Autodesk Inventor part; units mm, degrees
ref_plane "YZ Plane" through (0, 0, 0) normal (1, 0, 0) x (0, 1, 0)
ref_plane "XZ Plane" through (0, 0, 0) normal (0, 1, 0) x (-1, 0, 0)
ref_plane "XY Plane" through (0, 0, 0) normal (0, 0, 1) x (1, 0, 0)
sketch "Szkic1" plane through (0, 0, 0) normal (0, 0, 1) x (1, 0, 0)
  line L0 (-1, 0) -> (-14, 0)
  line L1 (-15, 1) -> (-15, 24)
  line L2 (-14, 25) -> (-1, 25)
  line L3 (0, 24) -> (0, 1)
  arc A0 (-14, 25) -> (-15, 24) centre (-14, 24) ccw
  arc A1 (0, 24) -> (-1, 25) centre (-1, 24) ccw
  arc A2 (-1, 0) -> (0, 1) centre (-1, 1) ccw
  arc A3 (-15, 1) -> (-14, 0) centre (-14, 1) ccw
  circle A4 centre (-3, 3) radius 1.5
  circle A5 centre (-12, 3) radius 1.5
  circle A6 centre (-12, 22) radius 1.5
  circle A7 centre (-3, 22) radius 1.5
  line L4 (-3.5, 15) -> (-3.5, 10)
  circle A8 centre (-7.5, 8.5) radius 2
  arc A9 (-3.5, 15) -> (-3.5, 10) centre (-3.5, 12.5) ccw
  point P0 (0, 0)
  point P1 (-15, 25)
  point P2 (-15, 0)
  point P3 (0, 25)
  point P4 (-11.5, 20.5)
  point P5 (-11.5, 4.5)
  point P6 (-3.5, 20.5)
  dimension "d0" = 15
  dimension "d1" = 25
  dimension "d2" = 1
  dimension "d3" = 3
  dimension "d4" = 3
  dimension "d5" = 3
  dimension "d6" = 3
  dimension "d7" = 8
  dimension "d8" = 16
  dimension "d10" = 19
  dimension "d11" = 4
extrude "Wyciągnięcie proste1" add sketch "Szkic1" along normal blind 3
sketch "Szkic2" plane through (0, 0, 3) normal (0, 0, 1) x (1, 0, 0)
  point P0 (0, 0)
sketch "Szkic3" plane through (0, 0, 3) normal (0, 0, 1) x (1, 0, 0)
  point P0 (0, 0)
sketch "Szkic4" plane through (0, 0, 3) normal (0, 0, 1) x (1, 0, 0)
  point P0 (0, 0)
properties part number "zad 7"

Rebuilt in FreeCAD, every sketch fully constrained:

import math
import FreeCAD as App
import Part
import Sketcher

doc = App.newDocument("Part")
body = doc.addObject("PartDesign::Body", "Body")

# Sketch on XY plane
sketch1 = doc.addObject("Sketcher::SketchObject", "Sketch")
body.addObject(sketch1)
sketch1.AttachmentSupport = (doc.XY_Plane, [""])
sketch1.MapMode = "FlatFace"
sketch1.addGeometry([
    Part.LineSegment(App.Vector(-14, 0, 0), App.Vector(-1, 0, 0)),  # 0
    Part.ArcOfCircle(Part.Circle(App.Vector(-1, 1, 0), App.Vector(0, 0, 1), 1), math.radians(-90), math.radians(0)),  # 1
    Part.LineSegment(App.Vector(0, 1, 0), App.Vector(0, 24, 0)),  # 2
    Part.ArcOfCircle(Part.Circle(App.Vector(-1, 24, 0), App.Vector(0, 0, 1), 1), math.radians(0), math.radians(90)),  # 3
    Part.LineSegment(App.Vector(-1, 25, 0), App.Vector(-14, 25, 0)),  # 4
    Part.ArcOfCircle(Part.Circle(App.Vector(-14, 24, 0), App.Vector(0, 0, 1), 1), math.radians(90), math.radians(180)),  # 5
    Part.LineSegment(App.Vector(-15, 24, 0), App.Vector(-15, 1, 0)),  # 6
    Part.ArcOfCircle(Part.Circle(App.Vector(-14, 1, 0), App.Vector(0, 0, 1), 1), math.radians(180), math.radians(270)),  # 7
    Part.Circle(App.Vector(-12, 3, 0), App.Vector(0, 0, 1), 1.5),  # 8
    Part.Circle(App.Vector(-3, 3, 0), App.Vector(0, 0, 1), 1.5),  # 9
    Part.Circle(App.Vector(-7.5, 8.5, 0), App.Vector(0, 0, 1), 2),  # 10
    Part.Circle(App.Vector(-12, 22, 0), App.Vector(0, 0, 1), 1.5),  # 11
    Part.ArcOfCircle(Part.Circle(App.Vector(-3.5, 12.5, 0), App.Vector(0, 0, 1), 2.5), math.radians(90), math.radians(270)),  # 12
    Part.LineSegment(App.Vector(-3.5, 15, 0), App.Vector(-3.5, 10, 0)),  # 13
    Part.Circle(App.Vector(-3, 22, 0), App.Vector(0, 0, 1), 1.5),  # 14
], False)
sketch1.addConstraint([
    Sketcher.Constraint("Tangent", 0, 2, 1, 1),
    Sketcher.Constraint("Tangent", 1, 2, 2, 1),
    Sketcher.Constraint("Tangent", 2, 2, 3, 1),
    Sketcher.Constraint("Tangent", 3, 2, 4, 1),
    Sketcher.Constraint("Tangent", 4, 2, 5, 1),
    Sketcher.Constraint("Tangent", 5, 2, 6, 1),
    Sketcher.Constraint("Tangent", 6, 2, 7, 1),
    Sketcher.Constraint("Tangent", 7, 2, 0, 1),
    Sketcher.Constraint("Coincident", 12, 1, 13, 1),
    Sketcher.Constraint("Coincident", 13, 2, 12, 2),
    Sketcher.Constraint("Horizontal", 0),
    Sketcher.Constraint("Vertical", 2),
    Sketcher.Constraint("Horizontal", 4),
    Sketcher.Constraint("Vertical", 6),
    Sketcher.Constraint("Vertical", 13),
    Sketcher.Constraint("Equal", 1, 3),
    Sketcher.Constraint("Equal", 3, 5),
    Sketcher.Constraint("Equal", 5, 7),
    Sketcher.Constraint("Equal", 8, 9),
    Sketcher.Constraint("Equal", 9, 11),
    Sketcher.Constraint("Equal", 11, 14),
    Sketcher.Constraint("PointOnObject", 0, 2, -1),
    Sketcher.Constraint("PointOnObject", 1, 2, -2),
    Sketcher.Constraint("Horizontal", 8, 3, 9, 3),
    Sketcher.Constraint("Horizontal", 11, 3, 14, 3),
    Sketcher.Constraint("Vertical", 8, 3, 11, 3),
    Sketcher.Constraint("Vertical", 9, 3, 14, 3),
    Sketcher.Constraint("Diameter", 8, 3.0),
    Sketcher.Constraint("Diameter", 10, 4.0),
    Sketcher.Constraint("Radius", 1, 1.0),
    Sketcher.Constraint("DistanceY", -1, 1, 8, 3, 3.0),
    Sketcher.Constraint("DistanceX", 9, 3, -1, 1, 3.0),
    Sketcher.Constraint("DistanceY", -1, 1, 3, 2, 25.0),
    Sketcher.Constraint("DistanceX", 5, 2, -1, 1, 15.0),
    Sketcher.Constraint("DistanceY", -1, 1, 12, 1, 15.0),
    Sketcher.Constraint("DistanceY", 8, 3, 11, 3, 19.0),
    Sketcher.Constraint("DistanceX", 10, 3, 12, 3, 4.0),
    Sketcher.Constraint("DistanceY", 10, 3, 12, 3, 4.0),
    Sketcher.Constraint("DistanceX", 5, 2, 11, 3, 3.0),
    Sketcher.Constraint("DistanceX", 10, 3, 12, 1, 4.0),
    Sketcher.Constraint("Radius", 12, 2.5),
    Sketcher.Constraint("DistanceX", 10, 3, -1, 1, 7.5),
])
pad1 = doc.addObject("PartDesign::Pad", "Pad")
body.addObject(pad1)
pad1.Profile = sketch1
pad1.Length = 3

doc.recompute()
